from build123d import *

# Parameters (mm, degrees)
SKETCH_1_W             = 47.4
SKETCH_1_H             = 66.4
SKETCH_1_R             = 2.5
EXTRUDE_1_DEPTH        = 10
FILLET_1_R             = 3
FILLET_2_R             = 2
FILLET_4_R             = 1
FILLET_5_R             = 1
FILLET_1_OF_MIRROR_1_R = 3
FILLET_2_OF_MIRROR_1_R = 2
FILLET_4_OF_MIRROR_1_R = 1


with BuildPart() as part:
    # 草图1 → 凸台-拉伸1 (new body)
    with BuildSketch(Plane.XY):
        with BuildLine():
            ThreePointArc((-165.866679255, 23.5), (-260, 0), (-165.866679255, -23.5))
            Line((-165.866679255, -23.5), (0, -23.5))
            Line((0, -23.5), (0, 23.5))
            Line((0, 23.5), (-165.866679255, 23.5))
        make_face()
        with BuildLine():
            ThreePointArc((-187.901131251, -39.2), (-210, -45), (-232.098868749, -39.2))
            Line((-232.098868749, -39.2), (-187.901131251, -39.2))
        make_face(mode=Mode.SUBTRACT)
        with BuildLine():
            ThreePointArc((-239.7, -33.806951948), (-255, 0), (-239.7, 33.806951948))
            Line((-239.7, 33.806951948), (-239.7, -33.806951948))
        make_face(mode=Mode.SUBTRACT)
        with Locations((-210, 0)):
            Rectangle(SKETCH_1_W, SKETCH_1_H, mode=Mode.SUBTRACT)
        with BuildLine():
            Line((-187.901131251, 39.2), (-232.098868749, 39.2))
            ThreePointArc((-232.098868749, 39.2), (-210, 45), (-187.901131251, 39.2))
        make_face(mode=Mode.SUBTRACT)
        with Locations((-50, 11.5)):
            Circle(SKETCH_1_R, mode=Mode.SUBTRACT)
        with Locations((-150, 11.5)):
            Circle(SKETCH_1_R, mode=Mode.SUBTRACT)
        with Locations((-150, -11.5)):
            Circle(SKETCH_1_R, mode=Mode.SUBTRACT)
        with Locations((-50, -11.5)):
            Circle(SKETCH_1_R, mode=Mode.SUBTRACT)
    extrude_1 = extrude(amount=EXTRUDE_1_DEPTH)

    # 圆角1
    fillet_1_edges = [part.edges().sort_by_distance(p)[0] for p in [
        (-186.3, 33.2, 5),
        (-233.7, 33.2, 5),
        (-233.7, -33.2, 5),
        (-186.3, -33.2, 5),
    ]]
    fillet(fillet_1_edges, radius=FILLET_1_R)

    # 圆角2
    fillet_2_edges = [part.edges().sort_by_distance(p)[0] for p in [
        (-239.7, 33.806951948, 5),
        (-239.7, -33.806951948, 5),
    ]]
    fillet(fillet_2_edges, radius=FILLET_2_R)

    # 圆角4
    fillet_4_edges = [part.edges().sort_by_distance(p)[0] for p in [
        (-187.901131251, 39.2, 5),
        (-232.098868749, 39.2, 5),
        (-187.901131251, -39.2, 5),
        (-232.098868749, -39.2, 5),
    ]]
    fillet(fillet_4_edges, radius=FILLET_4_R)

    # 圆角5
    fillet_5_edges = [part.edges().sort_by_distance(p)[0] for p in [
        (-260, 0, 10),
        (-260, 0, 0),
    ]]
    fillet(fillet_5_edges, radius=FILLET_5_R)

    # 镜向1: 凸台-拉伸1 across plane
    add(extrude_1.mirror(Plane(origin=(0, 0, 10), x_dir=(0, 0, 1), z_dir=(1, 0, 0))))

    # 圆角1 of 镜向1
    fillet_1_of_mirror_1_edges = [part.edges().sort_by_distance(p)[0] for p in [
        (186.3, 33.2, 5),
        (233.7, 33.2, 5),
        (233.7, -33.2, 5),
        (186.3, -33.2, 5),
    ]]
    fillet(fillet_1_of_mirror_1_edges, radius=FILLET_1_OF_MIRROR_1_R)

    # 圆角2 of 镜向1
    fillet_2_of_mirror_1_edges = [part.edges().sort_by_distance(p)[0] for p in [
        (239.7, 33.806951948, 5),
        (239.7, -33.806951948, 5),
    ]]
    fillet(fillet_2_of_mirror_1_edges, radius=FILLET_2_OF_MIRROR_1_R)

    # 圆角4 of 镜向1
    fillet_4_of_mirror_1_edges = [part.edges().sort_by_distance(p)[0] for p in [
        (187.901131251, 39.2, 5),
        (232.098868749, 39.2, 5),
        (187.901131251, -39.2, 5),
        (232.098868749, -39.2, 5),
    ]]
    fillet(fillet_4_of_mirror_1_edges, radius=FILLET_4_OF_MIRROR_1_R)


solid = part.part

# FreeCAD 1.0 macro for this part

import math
import FreeCAD as App
import Part
import Sketcher

V = App.Vector
Q = App.Units.Quantity


def edges_at(feature, points):
    """Names of the edges that pass closest to the given points."""
    edges = feature.Shape.Edges
    near = lambda p: min(range(len(edges)), key=lambda i: edges[i].distToShape(Part.Vertex(*p))[0])
    return sorted({f"Edge{near(p) + 1}" for p in points})


def add_polygon(sketch, points):
    """Adds a closed chain of lines whose ends are joined by coincident constraints."""
    first, n = sketch.GeometryCount, len(points)
    for a, b in zip(points, points[1:] + points[:1]):
        sketch.addGeometry(Part.LineSegment(App.Vector(*a, 0), App.Vector(*b, 0)), False)
    for i in range(n):
        sketch.addConstraint(Sketcher.Constraint("Coincident", first + i, 2, first + (i + 1) % n, 1))

doc = App.newDocument("Part")
params = doc.addObject("Spreadsheet::Sheet", "Params")
for row, (alias, value) in enumerate([
    ("sketch1_diameter", "5 mm"),
    ("sketch1_radius", "50 mm"),
    ("sketch1_radius2", "45 mm"),
    ("sketch1_height", "47 mm"),
    ("sketch1_width", "47.4 mm"),
    ("pad1_length", "10 mm"),
    ("fillet_radius", "3 mm"),
    ("fillet2_radius", "2 mm"),
    ("fillet3_radius", "1 mm"),
    ("fillet4_radius", "1 mm"),
    ("fillet5_radius", "3 mm"),
    ("fillet6_radius", "2 mm"),
    ("fillet7_radius", "1 mm"),
], start=1):
    params.set(f"A{row}", alias)
    params.set(f"B{row}", "=" + value)
    params.setAlias(f"B{row}", alias)

body = doc.addObject("PartDesign::Body", "Body")

sketch1 = doc.addObject("Sketcher::SketchObject", "Sketch")
body.addObject(sketch1)
sketch1.AttachmentSupport = (doc.XY_Plane, [""])
sketch1.MapMode = "FlatFace"
sketch1.addGeometry(Part.ArcOfCircle(Part.Circle(V(-210, 0, 0), V(0, 0, 1), 50), math.radians(28), math.radians(332)), False)
sketch1.addGeometry(Part.LineSegment(V(-165.9, -23.5, 0), V(0, -23.5, 0)), False)
sketch1.addGeometry(Part.LineSegment(V(0, -23.5, 0), V(0, 23.5, 0)), False)
sketch1.addGeometry(Part.LineSegment(V(0, 23.5, 0), V(-165.9, 23.5, 0)), False)
sketch1.addGeometry(Part.LineSegment(V(-232.1, -39.2, 0), V(-187.9, -39.2, 0)), False)
sketch1.addGeometry(Part.ArcOfCircle(Part.Circle(V(-210, 0, 0), V(0, 0, 1), 45), math.radians(-119), math.radians(-61)), False)
sketch1.addGeometry(Part.Circle(V(-150, -11.5, 0), V(0, 0, 1), 2.5), False)
sketch1.addGeometry(Part.Circle(V(-50, -11.5, 0), V(0, 0, 1), 2.5), False)
sketch1.addGeometry(Part.LineSegment(V(-239.7, 33.8, 0), V(-239.7, -33.8, 0)), False)
sketch1.addGeometry(Part.ArcOfCircle(Part.Circle(V(-210, 0, 0), V(0, 0, 1), 45), math.radians(131), math.radians(229)), False)
add_polygon(sketch1, [(-186.3, -33.2), (-233.7, -33.2), (-233.7, 33.2), (-186.3, 33.2)])
sketch1.addGeometry(Part.ArcOfCircle(Part.Circle(V(-210, 0, 0), V(0, 0, 1), 45), math.radians(61), math.radians(119)), False)
sketch1.addGeometry(Part.LineSegment(V(-187.9, 39.2, 0), V(-232.1, 39.2, 0)), False)
sketch1.addGeometry(Part.Circle(V(-150, 11.5, 0), V(0, 0, 1), 2.5), False)
sketch1.addGeometry(Part.Circle(V(-50, 11.5, 0), V(0, 0, 1), 2.5), False)
sketch1.addConstraint(Sketcher.Constraint("Coincident", 0, 2, 1, 1))
sketch1.addConstraint(Sketcher.Constraint("Coincident", 1, 2, 2, 1))
sketch1.addConstraint(Sketcher.Constraint("Coincident", 2, 2, 3, 1))
sketch1.addConstraint(Sketcher.Constraint("Coincident", 3, 2, 0, 1))
sketch1.addConstraint(Sketcher.Constraint("Coincident", 4, 1, 5, 1))
sketch1.addConstraint(Sketcher.Constraint("Coincident", 5, 2, 4, 2))
sketch1.addConstraint(Sketcher.Constraint("Coincident", 8, 1, 9, 1))
sketch1.addConstraint(Sketcher.Constraint("Coincident", 9, 2, 8, 2))
sketch1.addConstraint(Sketcher.Constraint("Coincident", 14, 1, 15, 1))
sketch1.addConstraint(Sketcher.Constraint("Coincident", 15, 2, 14, 2))
sketch1.addConstraint(Sketcher.Constraint("Horizontal", 1))
sketch1.addConstraint(Sketcher.Constraint("Vertical", 2))
sketch1.addConstraint(Sketcher.Constraint("Horizontal", 3))
sketch1.addConstraint(Sketcher.Constraint("Horizontal", 4))
sketch1.addConstraint(Sketcher.Constraint("Vertical", 8))
sketch1.addConstraint(Sketcher.Constraint("Horizontal", 10))
sketch1.addConstraint(Sketcher.Constraint("Vertical", 11))
sketch1.addConstraint(Sketcher.Constraint("Horizontal", 12))
sketch1.addConstraint(Sketcher.Constraint("Vertical", 13))
sketch1.addConstraint(Sketcher.Constraint("Horizontal", 15))
sketch1.addConstraint(Sketcher.Constraint("Coincident", 5, 3, 0, 3))
sketch1.addConstraint(Sketcher.Constraint("Coincident", 9, 3, 0, 3))
sketch1.addConstraint(Sketcher.Constraint("Coincident", 14, 3, 0, 3))
sketch1.addConstraint(Sketcher.Constraint("Equal", 6, 7))
sketch1.addConstraint(Sketcher.Constraint("Equal", 5, 9))
sketch1.addConstraint(Sketcher.Constraint("Equal", 9, 14))
sketch1.addConstraint(Sketcher.Constraint("Equal", 7, 16))
sketch1.addConstraint(Sketcher.Constraint("Equal", 16, 17))
sketch1.addConstraint(Sketcher.Constraint("Symmetric", 1, 2, 2, 2, -1, 1))
sketch1.addConstraint(Sketcher.Constraint("Symmetric", 6, 3, 16, 3, -1))
sketch1.addConstraint(Sketcher.Constraint("Symmetric", 7, 3, 17, 3, -1))
sketch1.addConstraint(Sketcher.Constraint("Symmetric", 5, 2, 14, 1, -1))
sketch1.addConstraint(Sketcher.Constraint("Horizontal", 6, 3, 7, 3))
sketch1.addConstraint(Sketcher.Constraint("Diameter", 6, Q("5 mm")))
sketch1.addConstraint(Sketcher.Constraint("Radius", 0, Q("50 mm")))
sketch1.addConstraint(Sketcher.Constraint("Radius", 5, Q("45 mm")))
sketch1.addConstraint(Sketcher.Constraint("DistanceY", 2, 1, 2, 2, Q("47 mm")))
sketch1.addConstraint(Sketcher.Constraint("DistanceX", 10, 2, 10, 1, Q("47.4 mm")))
sketch1.addConstraint(Sketcher.Constraint("DistanceY", 11, 1, 11, 2, Q("66.4 mm")))
sketch1.addConstraint(Sketcher.Constraint("DistanceX", 0, 3, -1, 1, Q("210 mm")))
sketch1.addConstraint(Sketcher.Constraint("DistanceX", 6, 3, -1, 1, Q("150 mm")))
sketch1.addConstraint(Sketcher.Constraint("DistanceX", 7, 3, -1, 1, Q("50 mm")))
sketch1.addConstraint(Sketcher.Constraint("DistanceY", 6, 3, 16, 3, Q("23 mm")))
sketch1.addConstraint(Sketcher.Constraint("DistanceX", 9, 2, 10, 2, Q("6 mm")))
sketch1.addConstraint(Sketcher.Constraint("DistanceY", 4, 1, 10, 2, Q("6 mm")))
sketch1.addConstraint(Sketcher.Constraint("DistanceY", 12, 2, 14, 1, Q("6 mm")))
sketch1.addConstraint(Sketcher.Constraint("DistanceX", 8, 1, -1, 1, Q("239.7 mm")))
sketch1.setExpression("Constraints[37]", "Params.sketch1_diameter")
sketch1.setExpression("Constraints[38]", "Params.sketch1_radius")
sketch1.setExpression("Constraints[39]", "Params.sketch1_radius2")
sketch1.setExpression("Constraints[40]", "Params.sketch1_height")
sketch1.setExpression("Constraints[41]", "Params.sketch1_width")
pad1 = doc.addObject("PartDesign::Pad", "Pad")
body.addObject(pad1)
pad1.Profile = sketch1
pad1.setExpression("Length", "Params.pad1_length")
doc.recompute()

fillet = doc.addObject("PartDesign::Fillet", "Fillet")
body.addObject(fillet)
fillet.Base = (pad1, edges_at(pad1, [
    (-186.3, 33.2, 5),
    (-233.7, 33.2, 5),
    (-233.7, -33.2, 5),
    (-186.3, -33.2, 5),
]))
fillet.setExpression("Radius", "Params.fillet_radius")
doc.recompute()

fillet2 = doc.addObject("PartDesign::Fillet", "Fillet001")
body.addObject(fillet2)
fillet2.Base = (fillet, edges_at(fillet, [(-239.7, 33.807, 5), (-239.7, -33.807, 5)]))
fillet2.setExpression("Radius", "Params.fillet2_radius")
doc.recompute()

fillet3 = doc.addObject("PartDesign::Fillet", "Fillet002")
body.addObject(fillet3)
fillet3.Base = (fillet2, edges_at(fillet2, [
    (-187.901, 39.2, 5),
    (-232.099, 39.2, 5),
    (-187.901, -39.2, 5),
    (-232.099, -39.2, 5),
]))
fillet3.setExpression("Radius", "Params.fillet3_radius")
doc.recompute()

fillet4 = doc.addObject("PartDesign::Fillet", "Fillet003")
body.addObject(fillet4)
fillet4.Base = (fillet3, edges_at(fillet3, [(-260, 0, 10), (-260, 0, 0)]))
fillet4.setExpression("Radius", "Params.fillet4_radius")
doc.recompute()

mirrored = doc.addObject("PartDesign::Mirrored", "Mirrored")
body.addObject(mirrored)
mirrored.Originals = [pad1]
mirrored.MirrorPlane = (doc.YZ_Plane, [""])
body.Tip = mirrored
doc.recompute()

fillet5 = doc.addObject("PartDesign::Fillet", "Fillet004")
body.addObject(fillet5)
fillet5.Base = (mirrored, edges_at(mirrored, [
    (186.3, 33.2, 5),
    (233.7, 33.2, 5),
    (233.7, -33.2, 5),
    (186.3, -33.2, 5),
]))
fillet5.setExpression("Radius", "Params.fillet5_radius")
doc.recompute()

fillet6 = doc.addObject("PartDesign::Fillet", "Fillet005")
body.addObject(fillet6)
fillet6.Base = (fillet5, edges_at(fillet5, [(239.7, 33.807, 5), (239.7, -33.807, 5)]))
fillet6.setExpression("Radius", "Params.fillet6_radius")
doc.recompute()

fillet7 = doc.addObject("PartDesign::Fillet", "Fillet006")
body.addObject(fillet7)
fillet7.Base = (fillet6, edges_at(fillet6, [
    (187.901, 39.2, 5),
    (232.099, 39.2, 5),
    (187.901, -39.2, 5),
    (232.099, -39.2, 5),
]))
fillet7.setExpression("Radius", "Params.fillet7_radius")

doc.recompute()
